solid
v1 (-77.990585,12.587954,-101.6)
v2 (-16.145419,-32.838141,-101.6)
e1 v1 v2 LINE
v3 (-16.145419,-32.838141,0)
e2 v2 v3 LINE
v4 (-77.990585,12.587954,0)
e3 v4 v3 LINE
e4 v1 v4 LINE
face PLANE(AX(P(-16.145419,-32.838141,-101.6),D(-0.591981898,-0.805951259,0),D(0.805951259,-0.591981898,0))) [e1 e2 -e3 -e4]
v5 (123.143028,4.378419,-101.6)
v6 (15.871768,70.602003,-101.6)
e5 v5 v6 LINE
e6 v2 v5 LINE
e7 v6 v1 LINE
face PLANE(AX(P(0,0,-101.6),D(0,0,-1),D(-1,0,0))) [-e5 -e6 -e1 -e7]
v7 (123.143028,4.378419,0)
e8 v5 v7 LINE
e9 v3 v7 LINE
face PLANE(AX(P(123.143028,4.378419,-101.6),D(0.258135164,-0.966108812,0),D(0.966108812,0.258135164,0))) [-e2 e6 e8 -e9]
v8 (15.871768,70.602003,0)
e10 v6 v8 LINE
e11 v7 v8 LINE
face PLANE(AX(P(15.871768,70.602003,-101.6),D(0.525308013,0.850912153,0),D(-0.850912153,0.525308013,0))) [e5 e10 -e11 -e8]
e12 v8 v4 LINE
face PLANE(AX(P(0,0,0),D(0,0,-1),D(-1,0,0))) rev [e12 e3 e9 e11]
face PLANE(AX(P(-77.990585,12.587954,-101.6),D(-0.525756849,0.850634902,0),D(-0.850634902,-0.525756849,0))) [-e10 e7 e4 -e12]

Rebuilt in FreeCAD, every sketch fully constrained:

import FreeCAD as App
import Part
import Sketcher
from FreeCAD import Vector
Q = App.Units.Quantity


def add_polygon(sketch, points):
    """Adds a closed chain of lines whose ends are joined by coincident constraints."""
    first, n = sketch.GeometryCount, len(points)
    for a, b in zip(points, points[1:] + points[:1]):
        sketch.addGeometry(Part.LineSegment(App.Vector(*a, 0), App.Vector(*b, 0)), False)
    for i in range(n):
        sketch.addConstraint(Sketcher.Constraint("Coincident", first + i, 2, first + (i + 1) % n, 1))

doc = App.newDocument("Part")
body = doc.addObject("PartDesign::Body", "Body")

# Sketch on XY plane
sketch1 = doc.addObject("Sketcher::SketchObject", "Sketch")
body.addObject(sketch1)
sketch1.AttachmentSupport = (doc.XY_Plane, [""])
sketch1.MapMode = "FlatFace"
add_polygon(sketch1, [(16, 71), (-78, 13), (-16, -33), (123, 4)])  # lines 0-3
sketch1.addConstraint([
    Sketcher.Constraint("Distance", 2, 144.174699),
    Sketcher.Constraint("Distance", 3, 126.066198),
    Sketcher.Constraint("DistanceX", 1, 2, -1, 1, 16.145419),
    Sketcher.Constraint("DistanceY", 1, 2, -1, 1, 32.838141),
    Sketcher.Constraint("DistanceX", -1, 1, 2, 2, 123.143028),
    Sketcher.Constraint("DistanceX", -1, 1, 3, 2, 15.871768),
    Sketcher.Constraint("DistanceY", 0, 2, 3, 2, 58.014049),
    Sketcher.Constraint("Distance", 0, 110.343877),
])
pad1 = doc.addObject("PartDesign::Pad", "Pad")
body.addObject(pad1)
pad1.Profile = sketch1
pad1.Length = Q("4 in")
pad1.Reversed = True

doc.recompute()
